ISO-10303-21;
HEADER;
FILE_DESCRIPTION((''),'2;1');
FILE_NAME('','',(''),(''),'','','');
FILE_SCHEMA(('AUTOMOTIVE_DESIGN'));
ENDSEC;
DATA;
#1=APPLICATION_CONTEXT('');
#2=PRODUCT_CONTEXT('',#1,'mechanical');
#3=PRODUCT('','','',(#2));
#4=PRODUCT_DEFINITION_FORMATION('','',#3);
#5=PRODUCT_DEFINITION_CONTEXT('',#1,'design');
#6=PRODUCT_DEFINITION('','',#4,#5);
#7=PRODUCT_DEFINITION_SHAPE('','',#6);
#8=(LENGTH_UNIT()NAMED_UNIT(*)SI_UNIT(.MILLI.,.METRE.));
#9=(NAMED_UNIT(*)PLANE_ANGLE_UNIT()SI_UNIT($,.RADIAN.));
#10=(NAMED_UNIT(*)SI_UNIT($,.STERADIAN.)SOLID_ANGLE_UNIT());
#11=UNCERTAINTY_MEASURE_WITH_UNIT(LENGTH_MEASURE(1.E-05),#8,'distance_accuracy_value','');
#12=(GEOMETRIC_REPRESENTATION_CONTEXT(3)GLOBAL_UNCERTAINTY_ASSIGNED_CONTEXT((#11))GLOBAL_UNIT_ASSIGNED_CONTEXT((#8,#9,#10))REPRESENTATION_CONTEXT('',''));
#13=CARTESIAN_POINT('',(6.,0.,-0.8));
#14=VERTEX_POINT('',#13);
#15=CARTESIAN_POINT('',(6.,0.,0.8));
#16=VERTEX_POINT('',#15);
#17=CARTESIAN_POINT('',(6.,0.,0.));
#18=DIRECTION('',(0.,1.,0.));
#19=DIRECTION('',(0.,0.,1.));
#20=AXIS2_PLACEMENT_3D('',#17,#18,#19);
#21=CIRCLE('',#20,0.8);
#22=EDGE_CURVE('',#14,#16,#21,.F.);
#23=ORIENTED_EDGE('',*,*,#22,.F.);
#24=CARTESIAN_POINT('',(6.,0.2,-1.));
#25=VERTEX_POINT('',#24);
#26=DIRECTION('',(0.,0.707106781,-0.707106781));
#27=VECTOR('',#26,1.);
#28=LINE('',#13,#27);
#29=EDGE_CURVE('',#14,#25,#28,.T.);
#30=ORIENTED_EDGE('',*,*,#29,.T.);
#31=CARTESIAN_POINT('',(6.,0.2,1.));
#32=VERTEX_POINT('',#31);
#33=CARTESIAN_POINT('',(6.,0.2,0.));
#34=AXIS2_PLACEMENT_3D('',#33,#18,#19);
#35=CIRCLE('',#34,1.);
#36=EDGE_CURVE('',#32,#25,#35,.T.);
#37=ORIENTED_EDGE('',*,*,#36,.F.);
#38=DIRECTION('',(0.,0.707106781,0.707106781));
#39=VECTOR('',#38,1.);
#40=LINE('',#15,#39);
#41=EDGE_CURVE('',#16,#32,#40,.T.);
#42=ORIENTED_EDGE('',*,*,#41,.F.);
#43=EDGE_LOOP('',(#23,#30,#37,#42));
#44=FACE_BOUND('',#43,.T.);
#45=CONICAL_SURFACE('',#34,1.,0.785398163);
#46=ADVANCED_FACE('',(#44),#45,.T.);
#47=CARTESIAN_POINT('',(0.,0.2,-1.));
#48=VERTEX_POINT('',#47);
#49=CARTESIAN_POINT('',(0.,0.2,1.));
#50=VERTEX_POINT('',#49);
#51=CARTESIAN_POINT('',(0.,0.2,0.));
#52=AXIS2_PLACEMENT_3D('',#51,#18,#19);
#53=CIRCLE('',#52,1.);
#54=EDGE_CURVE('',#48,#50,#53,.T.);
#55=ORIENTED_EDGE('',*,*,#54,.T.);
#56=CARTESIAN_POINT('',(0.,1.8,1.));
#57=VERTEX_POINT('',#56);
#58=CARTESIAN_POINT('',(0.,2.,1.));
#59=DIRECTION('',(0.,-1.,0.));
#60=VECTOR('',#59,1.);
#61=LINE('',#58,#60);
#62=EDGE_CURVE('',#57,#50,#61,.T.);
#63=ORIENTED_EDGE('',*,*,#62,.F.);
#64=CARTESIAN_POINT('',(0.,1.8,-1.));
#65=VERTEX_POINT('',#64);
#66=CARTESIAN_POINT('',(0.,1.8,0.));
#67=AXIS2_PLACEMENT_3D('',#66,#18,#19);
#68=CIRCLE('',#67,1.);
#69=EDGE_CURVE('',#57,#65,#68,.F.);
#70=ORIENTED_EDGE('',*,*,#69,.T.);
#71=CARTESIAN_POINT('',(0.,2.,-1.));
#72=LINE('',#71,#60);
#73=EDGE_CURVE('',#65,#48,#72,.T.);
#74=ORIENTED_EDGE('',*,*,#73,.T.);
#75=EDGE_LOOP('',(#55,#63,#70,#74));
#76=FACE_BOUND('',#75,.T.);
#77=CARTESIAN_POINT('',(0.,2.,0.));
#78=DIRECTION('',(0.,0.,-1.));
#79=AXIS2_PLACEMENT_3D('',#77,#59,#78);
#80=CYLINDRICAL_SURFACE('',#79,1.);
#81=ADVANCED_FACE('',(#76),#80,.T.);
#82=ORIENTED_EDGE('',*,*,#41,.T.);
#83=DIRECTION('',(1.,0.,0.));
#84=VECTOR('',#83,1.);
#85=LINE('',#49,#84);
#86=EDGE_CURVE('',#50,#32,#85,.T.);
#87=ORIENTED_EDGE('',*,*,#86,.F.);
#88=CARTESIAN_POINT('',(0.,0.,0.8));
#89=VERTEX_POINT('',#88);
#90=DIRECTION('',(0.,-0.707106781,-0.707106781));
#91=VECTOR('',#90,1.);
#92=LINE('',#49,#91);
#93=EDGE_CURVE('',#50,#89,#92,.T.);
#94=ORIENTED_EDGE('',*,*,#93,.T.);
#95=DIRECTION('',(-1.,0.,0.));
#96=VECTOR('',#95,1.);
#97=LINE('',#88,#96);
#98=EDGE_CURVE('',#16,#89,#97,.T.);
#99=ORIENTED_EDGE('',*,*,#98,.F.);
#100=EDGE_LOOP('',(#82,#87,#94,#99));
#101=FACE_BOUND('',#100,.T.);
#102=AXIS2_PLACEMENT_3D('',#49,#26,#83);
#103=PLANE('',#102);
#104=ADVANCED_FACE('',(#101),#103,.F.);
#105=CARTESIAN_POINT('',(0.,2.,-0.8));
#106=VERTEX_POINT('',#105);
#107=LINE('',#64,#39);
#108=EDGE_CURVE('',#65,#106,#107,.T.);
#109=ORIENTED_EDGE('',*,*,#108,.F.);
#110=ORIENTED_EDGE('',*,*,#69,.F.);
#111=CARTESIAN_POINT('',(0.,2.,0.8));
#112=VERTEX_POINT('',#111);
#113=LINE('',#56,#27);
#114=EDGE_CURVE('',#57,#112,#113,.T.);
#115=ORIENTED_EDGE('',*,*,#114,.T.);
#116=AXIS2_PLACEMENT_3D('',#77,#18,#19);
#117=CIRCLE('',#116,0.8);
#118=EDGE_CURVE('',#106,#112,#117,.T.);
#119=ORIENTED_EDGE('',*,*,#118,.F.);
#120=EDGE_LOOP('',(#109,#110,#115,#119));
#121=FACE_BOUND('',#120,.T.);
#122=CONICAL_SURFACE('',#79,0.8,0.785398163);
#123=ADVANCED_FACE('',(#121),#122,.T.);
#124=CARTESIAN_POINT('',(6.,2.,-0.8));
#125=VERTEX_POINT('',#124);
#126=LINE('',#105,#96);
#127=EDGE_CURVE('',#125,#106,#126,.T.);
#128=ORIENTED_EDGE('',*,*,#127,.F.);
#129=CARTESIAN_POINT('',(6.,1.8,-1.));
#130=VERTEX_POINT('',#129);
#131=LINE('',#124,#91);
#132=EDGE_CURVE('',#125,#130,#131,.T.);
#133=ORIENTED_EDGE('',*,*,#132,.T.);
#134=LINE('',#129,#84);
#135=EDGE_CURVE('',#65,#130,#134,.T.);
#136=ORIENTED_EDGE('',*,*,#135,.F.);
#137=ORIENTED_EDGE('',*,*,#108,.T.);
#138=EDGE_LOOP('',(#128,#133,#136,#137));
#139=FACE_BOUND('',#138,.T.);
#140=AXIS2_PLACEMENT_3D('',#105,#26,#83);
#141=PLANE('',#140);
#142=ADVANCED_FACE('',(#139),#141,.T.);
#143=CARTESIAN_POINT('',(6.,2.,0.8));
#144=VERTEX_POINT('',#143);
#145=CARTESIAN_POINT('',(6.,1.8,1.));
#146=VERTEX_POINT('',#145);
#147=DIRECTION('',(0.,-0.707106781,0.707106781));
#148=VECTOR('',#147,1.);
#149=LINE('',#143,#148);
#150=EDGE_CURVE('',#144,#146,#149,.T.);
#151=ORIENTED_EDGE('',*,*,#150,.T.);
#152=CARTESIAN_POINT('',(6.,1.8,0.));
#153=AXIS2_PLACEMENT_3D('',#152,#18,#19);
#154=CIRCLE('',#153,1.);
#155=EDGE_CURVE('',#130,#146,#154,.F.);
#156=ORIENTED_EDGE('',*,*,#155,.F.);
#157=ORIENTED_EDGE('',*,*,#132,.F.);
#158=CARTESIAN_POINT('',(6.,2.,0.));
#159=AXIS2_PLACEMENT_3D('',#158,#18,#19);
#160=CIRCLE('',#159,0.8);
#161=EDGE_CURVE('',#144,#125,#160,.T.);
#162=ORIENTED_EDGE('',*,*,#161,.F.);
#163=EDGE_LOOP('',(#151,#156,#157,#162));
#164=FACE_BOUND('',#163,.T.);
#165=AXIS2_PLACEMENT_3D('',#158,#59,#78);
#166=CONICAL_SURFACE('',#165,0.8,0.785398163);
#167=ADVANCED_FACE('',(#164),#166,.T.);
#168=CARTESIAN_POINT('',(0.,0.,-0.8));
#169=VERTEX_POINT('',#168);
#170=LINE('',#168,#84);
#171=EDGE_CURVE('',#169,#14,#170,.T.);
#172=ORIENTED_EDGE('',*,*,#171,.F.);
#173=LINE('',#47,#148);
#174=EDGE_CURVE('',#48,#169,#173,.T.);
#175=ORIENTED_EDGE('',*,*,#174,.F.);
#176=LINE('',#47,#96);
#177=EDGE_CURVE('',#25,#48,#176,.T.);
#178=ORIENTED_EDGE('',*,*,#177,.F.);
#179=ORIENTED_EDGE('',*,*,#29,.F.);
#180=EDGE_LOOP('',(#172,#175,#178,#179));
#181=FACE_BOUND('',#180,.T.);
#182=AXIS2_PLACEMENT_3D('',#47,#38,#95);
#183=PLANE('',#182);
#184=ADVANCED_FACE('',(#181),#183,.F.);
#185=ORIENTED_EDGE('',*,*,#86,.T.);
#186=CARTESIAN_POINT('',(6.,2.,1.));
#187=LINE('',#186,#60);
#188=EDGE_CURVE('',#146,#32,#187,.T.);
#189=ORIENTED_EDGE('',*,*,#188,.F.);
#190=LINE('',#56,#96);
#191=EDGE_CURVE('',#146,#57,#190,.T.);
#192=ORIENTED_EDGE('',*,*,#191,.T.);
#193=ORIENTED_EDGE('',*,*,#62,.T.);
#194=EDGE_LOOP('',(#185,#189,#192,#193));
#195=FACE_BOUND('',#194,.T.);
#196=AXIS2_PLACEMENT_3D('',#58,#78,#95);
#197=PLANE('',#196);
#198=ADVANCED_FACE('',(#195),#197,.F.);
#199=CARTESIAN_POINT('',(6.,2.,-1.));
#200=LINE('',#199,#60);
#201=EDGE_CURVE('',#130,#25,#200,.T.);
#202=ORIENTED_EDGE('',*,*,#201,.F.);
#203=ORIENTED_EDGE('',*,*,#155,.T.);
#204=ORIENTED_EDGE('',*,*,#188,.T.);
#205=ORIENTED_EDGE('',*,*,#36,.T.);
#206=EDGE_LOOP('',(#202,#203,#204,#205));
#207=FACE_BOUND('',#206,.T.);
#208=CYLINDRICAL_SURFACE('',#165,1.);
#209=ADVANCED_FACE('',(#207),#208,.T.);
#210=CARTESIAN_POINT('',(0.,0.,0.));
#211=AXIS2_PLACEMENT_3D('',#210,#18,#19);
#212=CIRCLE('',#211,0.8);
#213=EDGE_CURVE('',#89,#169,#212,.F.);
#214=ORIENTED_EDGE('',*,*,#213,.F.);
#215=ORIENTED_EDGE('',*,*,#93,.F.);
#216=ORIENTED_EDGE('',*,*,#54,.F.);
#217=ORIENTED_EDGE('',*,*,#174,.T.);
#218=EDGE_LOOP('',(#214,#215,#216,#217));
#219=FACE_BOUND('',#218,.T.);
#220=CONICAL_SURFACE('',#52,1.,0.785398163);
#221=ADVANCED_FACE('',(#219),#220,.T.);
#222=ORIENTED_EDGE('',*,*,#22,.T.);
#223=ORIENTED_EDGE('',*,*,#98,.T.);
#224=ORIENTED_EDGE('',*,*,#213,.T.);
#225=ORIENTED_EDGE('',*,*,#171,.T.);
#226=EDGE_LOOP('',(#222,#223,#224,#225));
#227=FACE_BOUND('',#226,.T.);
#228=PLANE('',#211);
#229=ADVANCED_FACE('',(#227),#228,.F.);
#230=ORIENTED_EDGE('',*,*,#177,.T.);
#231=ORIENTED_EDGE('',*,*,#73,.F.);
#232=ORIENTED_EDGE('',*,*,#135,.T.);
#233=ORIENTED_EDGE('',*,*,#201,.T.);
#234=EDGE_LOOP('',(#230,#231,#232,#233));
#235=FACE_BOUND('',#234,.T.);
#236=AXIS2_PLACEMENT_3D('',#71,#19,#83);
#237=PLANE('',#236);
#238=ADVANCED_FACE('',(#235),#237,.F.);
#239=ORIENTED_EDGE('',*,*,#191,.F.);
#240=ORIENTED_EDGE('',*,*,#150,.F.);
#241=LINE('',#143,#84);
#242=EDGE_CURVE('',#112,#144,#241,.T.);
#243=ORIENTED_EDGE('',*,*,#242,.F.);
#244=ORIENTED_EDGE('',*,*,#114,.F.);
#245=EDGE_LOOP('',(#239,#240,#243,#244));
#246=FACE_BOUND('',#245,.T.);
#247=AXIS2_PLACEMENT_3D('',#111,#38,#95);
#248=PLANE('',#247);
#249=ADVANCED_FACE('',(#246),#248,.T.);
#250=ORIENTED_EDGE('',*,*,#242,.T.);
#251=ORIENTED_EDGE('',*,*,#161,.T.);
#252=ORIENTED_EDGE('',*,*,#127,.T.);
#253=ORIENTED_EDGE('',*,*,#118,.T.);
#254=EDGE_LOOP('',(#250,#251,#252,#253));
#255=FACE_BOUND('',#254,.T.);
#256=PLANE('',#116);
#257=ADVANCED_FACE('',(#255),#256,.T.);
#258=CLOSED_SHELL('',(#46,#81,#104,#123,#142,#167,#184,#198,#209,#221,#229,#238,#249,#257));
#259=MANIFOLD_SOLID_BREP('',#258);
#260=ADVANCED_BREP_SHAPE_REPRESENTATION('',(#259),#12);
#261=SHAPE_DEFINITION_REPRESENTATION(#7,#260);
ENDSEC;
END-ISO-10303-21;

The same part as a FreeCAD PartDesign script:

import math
import FreeCAD as App
import Part
import Sketcher

V = App.Vector
Q = App.Units.Quantity


def edges_at(feature, points):
    """Names of the edges that pass closest to the given points."""
    edges = feature.Shape.Edges
    near = lambda p: min(range(len(edges)), key=lambda i: edges[i].distToShape(Part.Vertex(*p))[0])
    return sorted({f"Edge{near(p) + 1}" for p in points})

doc = App.newDocument("Part")
params = doc.addObject("Spreadsheet::Sheet", "Params")
for row, (alias, value) in enumerate([
    ("sketch1_radius", "1 mm"),
    ("sketch1_width", "6 mm"),
    ("pad1_length", "2 mm"),
    ("chamfer_size", "0.2 mm"),
], start=1):
    params.set(f"A{row}", alias)
    params.set(f"B{row}", "=" + value)
    params.setAlias(f"B{row}", alias)

body = doc.addObject("PartDesign::Body", "Body")

# Sketch on XZ plane
sketch1 = doc.addObject("Sketcher::SketchObject", "Sketch")
body.addObject(sketch1)
sketch1.AttachmentSupport = (doc.XZ_Plane, [""])
sketch1.MapMode = "FlatFace"
sketch1.addGeometry([
    Part.LineSegment(V(6, -1, 0), V(0, -1, 0)),
    Part.ArcOfCircle(Part.Circle(V(0, 0, 0), V(0, 0, 1), 1), math.radians(90), math.radians(270)),
    Part.LineSegment(V(0, 1, 0), V(6, 1, 0)),
    Part.ArcOfCircle(Part.Circle(V(6, 0, 0), V(0, 0, 1), 1), math.radians(-90), math.radians(90)),
], False)
sketch1.addConstraint([
    Sketcher.Constraint("Tangent", 0, 2, 1, 2),
    Sketcher.Constraint("Tangent", 1, 1, 2, 1),
    Sketcher.Constraint("Tangent", 2, 2, 3, 2),
    Sketcher.Constraint("Tangent", 3, 1, 0, 1),
    Sketcher.Constraint("Horizontal", 0),
    Sketcher.Constraint("Horizontal", 2),
    Sketcher.Constraint("Coincident", 1, 3, -1, 1),
    Sketcher.Constraint("Radius", 1, Q("1 mm")),
    Sketcher.Constraint("DistanceX", 0, 2, 0, 1, Q("6 mm")),
])
sketch1.setExpression("Constraints[7]", "Params.sketch1_radius")
sketch1.setExpression("Constraints[8]", "Params.sketch1_width")
pad1 = doc.addObject("PartDesign::Pad", "Pad")
body.addObject(pad1)
pad1.Profile = sketch1
pad1.setExpression("Length", "Params.pad1_length")
pad1.Reversed = True
doc.recompute()

chamfer = doc.addObject("PartDesign::Chamfer", "Chamfer")
body.addObject(chamfer)
chamfer.Base = (pad1, edges_at(pad1, [
    (7, 2, 0),
    (3, 2, -1),
    (-1, 2, 0),
    (3, 0, -1),
    (7, 0, 0),
    (3, 0, 1),
    (-1, 0, 0),
    (3, 2, 1),
]))
chamfer.setExpression("Size", "Params.chamfer_size")

doc.recompute()
